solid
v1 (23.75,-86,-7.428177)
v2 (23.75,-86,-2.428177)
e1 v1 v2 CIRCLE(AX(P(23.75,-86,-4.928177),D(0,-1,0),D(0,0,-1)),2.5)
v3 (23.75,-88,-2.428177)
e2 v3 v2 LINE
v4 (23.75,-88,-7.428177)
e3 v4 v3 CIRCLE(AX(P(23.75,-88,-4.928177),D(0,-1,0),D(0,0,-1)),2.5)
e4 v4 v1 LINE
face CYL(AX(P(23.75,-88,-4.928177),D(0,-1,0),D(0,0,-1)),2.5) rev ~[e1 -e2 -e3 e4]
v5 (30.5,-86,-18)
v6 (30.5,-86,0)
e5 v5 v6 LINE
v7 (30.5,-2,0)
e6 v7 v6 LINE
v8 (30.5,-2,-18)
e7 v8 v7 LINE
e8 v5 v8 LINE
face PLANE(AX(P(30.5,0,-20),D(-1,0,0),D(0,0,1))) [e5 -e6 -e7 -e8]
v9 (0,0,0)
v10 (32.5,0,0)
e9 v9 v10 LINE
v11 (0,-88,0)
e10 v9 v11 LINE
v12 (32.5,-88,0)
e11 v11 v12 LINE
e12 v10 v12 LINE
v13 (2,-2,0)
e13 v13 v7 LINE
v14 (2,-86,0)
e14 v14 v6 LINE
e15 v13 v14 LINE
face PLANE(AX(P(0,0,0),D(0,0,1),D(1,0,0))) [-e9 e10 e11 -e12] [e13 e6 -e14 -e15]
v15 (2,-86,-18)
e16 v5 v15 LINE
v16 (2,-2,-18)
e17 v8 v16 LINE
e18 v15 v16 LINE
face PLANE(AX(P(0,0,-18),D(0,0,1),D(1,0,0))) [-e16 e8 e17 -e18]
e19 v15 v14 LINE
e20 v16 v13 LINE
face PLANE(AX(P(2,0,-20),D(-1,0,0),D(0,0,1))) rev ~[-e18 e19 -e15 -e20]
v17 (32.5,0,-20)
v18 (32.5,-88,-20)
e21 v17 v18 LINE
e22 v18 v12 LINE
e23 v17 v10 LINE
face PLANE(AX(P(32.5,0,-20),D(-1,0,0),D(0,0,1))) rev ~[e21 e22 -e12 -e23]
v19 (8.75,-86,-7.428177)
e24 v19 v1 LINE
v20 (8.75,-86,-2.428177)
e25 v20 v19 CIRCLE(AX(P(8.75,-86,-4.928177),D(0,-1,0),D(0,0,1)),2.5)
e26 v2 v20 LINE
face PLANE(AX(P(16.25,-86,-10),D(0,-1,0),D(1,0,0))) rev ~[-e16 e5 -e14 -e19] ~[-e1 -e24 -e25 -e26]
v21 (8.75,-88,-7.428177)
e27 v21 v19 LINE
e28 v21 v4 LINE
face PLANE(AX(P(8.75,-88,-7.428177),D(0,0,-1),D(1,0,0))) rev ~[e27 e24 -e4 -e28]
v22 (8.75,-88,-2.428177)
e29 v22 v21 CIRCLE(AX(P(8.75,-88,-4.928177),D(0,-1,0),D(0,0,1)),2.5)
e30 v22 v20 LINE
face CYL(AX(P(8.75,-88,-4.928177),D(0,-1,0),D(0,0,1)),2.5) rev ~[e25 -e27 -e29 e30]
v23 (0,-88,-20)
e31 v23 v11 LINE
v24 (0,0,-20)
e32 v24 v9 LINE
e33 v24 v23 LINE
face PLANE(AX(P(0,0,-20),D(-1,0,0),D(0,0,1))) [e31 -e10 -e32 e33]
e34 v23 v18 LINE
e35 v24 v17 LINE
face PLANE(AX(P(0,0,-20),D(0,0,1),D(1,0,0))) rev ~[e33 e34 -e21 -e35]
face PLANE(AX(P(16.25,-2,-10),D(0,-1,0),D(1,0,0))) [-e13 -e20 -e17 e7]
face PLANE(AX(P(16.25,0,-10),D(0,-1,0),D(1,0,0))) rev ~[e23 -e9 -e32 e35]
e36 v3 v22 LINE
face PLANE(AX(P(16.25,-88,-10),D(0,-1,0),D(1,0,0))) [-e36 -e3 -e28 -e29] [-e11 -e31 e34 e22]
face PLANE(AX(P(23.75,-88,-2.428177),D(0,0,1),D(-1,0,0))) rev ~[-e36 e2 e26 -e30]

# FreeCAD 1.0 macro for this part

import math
import FreeCAD as App
import Part
import Sketcher

V = App.Vector
Q = App.Units.Quantity


def faces_at(feature, points):
    """Names of the faces that lie closest to the given points."""
    faces = feature.Shape.Faces
    near = lambda p: min(range(len(faces)), key=lambda i: faces[i].distToShape(Part.Vertex(*p))[0])
    return sorted({f"Face{near(p) + 1}" for p in points})


def add_polygon(sketch, points):
    """Adds a closed chain of lines whose ends are joined by coincident constraints."""
    first, n = sketch.GeometryCount, len(points)
    for a, b in zip(points, points[1:] + points[:1]):
        sketch.addGeometry(Part.LineSegment(App.Vector(*a, 0), App.Vector(*b, 0)), False)
    for i in range(n):
        sketch.addConstraint(Sketcher.Constraint("Coincident", first + i, 2, first + (i + 1) % n, 1))

doc = App.newDocument("Part")
body = doc.addObject("PartDesign::Body", "Body")

sketch1 = body.newObject("Sketcher::SketchObject", "Sketch")
sketch1.AttachmentSupport = (doc.getObject("XZ_Plane"), [""])
sketch1.MapMode = "FlatFace"
add_polygon(sketch1, [(0, 0), (0, -20), (32, -20), (32, 0)])
sketch1.addConstraint(Sketcher.Constraint("Vertical", 0))
sketch1.addConstraint(Sketcher.Constraint("Horizontal", 1))
sketch1.addConstraint(Sketcher.Constraint("Vertical", 2))
sketch1.addConstraint(Sketcher.Constraint("Horizontal", 3))
sketch1.addConstraint(Sketcher.Constraint("Coincident", 3, 2, -1, 1))
sketch1.addConstraint(Sketcher.Constraint("DistanceY", 0, 2, 0, 1, Q("20 mm")))
sketch1.addConstraint(Sketcher.Constraint("DistanceX", 1, 1, 1, 2, Q("32.5 mm")))
pad1 = body.newObject("PartDesign::Pad", "Pad")
pad1.Profile = sketch1
pad1.Length = 88
doc.recompute()

thickness = body.newObject("PartDesign::Thickness", "Thickness")
thickness.Base = (pad1, faces_at(pad1, [(16.25, -44, 0)]))
thickness.Value = 2
thickness.Reversed = True
thickness.Join = "Arc"

sketch2 = body.newObject("Sketcher::SketchObject", "Sketch001")
sketch2.AttachmentSupport = (doc.getObject("XZ_Plane"), [""])
sketch2.MapMode = "FlatFace"
sketch2.AttachmentOffset = App.Placement(V(0, 0, 88), App.Rotation())
sketch2.addGeometry(Part.LineSegment(V(23.8, -2.4, 0), V(8.8, -2.4, 0)), False)
sketch2.addGeometry(Part.ArcOfCircle(Part.Circle(V(8.8, -4.9, 0), V(0, 0, 1), 2.5), math.radians(90), math.radians(270)), False)
sketch2.addGeometry(Part.LineSegment(V(8.8, -7.4, 0), V(23.8, -7.4, 0)), False)
sketch2.addGeometry(Part.ArcOfCircle(Part.Circle(V(23.8, -4.9, 0), V(0, 0, 1), 2.5), math.radians(-90), math.radians(90)), False)
sketch2.addConstraint(Sketcher.Constraint("Tangent", 0, 2, 1, 1))
sketch2.addConstraint(Sketcher.Constraint("Tangent", 1, 2, 2, 1))
sketch2.addConstraint(Sketcher.Constraint("Tangent", 2, 2, 3, 1))
sketch2.addConstraint(Sketcher.Constraint("Tangent", 3, 2, 0, 1))
sketch2.addConstraint(Sketcher.Constraint("Horizontal", 0))
sketch2.addConstraint(Sketcher.Constraint("Horizontal", 2))
sketch2.addConstraint(Sketcher.Constraint("Radius", 1, Q("2.5 mm")))
sketch2.addConstraint(Sketcher.Constraint("DistanceX", 0, 2, 0, 1, Q("15 mm")))
sketch2.addConstraint(Sketcher.Constraint("DistanceX", -1, 1, 1, 3, Q("8.75 mm")))
sketch2.addConstraint(Sketcher.Constraint("DistanceY", 1, 3, -1, 1, Q("4.928177 mm")))
pocket1 = body.newObject("PartDesign::Pocket", "Pocket")
pocket1.Profile = sketch2
pocket1.Length = 25

doc.recompute()
